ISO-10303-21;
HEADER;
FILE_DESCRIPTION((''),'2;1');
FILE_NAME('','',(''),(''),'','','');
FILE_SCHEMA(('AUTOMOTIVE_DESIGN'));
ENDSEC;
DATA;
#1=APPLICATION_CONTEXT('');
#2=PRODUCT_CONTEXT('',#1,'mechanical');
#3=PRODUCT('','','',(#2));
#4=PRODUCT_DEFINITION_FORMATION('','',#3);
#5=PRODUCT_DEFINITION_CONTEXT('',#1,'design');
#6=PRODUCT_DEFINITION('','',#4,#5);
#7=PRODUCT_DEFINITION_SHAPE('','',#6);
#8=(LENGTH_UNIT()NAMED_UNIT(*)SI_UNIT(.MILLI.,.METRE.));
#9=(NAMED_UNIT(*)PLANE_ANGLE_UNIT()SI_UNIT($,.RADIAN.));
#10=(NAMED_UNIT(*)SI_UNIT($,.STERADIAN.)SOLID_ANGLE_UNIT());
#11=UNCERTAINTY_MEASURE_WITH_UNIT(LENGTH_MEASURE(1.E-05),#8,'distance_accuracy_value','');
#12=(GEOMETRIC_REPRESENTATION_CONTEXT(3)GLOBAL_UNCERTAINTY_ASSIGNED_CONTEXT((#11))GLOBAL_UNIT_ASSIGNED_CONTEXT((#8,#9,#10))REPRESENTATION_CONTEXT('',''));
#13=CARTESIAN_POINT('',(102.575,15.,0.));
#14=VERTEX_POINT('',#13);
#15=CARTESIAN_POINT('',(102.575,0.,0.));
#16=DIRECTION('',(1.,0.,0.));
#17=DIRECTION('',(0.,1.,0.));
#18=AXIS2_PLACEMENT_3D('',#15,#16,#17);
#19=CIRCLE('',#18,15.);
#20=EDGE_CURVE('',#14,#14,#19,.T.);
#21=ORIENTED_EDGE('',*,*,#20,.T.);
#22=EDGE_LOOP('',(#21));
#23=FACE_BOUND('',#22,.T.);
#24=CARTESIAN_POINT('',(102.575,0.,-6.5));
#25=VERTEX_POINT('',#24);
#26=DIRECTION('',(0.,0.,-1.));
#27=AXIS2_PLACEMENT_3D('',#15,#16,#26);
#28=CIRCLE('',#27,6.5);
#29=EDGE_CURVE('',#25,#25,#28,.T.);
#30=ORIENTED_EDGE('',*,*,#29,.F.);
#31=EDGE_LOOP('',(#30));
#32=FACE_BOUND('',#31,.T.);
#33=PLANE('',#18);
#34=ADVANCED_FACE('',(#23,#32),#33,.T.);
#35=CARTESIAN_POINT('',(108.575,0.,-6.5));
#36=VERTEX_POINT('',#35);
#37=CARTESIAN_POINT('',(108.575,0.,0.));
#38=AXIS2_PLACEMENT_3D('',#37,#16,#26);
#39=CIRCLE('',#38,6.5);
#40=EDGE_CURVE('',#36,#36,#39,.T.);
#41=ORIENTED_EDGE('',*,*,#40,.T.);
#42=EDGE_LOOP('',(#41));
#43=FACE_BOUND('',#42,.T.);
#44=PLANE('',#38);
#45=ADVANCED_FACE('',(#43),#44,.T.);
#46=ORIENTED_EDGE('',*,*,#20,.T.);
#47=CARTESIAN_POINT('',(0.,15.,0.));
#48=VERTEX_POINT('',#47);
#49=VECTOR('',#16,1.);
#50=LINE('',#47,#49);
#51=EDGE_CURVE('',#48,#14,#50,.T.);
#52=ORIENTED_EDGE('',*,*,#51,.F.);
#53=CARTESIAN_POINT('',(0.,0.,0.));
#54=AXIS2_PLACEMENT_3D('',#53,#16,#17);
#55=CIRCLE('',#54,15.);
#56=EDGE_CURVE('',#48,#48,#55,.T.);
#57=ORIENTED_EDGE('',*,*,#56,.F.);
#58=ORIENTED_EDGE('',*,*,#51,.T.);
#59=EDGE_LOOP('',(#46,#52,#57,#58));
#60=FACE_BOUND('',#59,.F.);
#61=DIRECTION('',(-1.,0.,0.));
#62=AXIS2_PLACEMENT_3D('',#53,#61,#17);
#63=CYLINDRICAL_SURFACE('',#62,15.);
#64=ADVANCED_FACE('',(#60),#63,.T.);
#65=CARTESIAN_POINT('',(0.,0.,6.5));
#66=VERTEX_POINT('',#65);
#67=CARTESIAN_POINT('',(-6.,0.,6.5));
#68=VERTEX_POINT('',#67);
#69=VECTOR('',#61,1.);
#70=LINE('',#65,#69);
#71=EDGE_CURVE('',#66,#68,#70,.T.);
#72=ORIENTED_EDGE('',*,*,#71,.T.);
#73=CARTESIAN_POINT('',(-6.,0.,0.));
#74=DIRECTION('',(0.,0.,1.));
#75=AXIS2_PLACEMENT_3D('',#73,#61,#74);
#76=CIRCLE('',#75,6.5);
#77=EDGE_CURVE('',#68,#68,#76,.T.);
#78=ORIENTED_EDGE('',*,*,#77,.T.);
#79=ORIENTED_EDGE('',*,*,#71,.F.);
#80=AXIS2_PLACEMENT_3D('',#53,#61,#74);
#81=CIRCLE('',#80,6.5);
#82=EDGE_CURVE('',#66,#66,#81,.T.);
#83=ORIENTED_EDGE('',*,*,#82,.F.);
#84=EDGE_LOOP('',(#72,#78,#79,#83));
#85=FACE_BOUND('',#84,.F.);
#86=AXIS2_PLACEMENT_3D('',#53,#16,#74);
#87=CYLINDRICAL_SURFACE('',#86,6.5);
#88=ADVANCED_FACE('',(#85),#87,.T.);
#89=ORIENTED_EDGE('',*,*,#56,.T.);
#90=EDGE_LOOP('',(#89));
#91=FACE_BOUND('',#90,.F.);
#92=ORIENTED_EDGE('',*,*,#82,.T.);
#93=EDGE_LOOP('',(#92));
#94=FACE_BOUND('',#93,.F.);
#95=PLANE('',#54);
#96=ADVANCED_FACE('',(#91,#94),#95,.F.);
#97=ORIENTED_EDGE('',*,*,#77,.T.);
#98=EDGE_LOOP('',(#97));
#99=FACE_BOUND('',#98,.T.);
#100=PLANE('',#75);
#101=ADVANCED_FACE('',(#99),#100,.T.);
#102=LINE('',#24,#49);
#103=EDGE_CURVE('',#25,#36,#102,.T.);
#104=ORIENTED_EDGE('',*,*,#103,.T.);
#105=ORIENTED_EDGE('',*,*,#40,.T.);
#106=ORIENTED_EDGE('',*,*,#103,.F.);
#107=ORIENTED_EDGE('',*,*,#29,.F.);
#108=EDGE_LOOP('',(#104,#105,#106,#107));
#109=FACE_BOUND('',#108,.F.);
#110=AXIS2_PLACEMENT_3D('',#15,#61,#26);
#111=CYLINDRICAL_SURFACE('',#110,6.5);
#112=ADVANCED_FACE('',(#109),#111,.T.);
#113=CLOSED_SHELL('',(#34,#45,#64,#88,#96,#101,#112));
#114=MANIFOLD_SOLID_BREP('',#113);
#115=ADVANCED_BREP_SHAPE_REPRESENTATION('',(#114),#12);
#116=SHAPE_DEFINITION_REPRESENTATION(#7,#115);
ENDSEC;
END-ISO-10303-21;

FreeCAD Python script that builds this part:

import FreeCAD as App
import Part
import Sketcher
Q = App.Units.Quantity

doc = App.newDocument("Part")
body = doc.addObject("PartDesign::Body", "Body")

sketch1 = body.newObject("Sketcher::SketchObject", "Sketch")
sketch1.AttachmentSupport = (doc.getObject("YZ_Plane"), [""])
sketch1.MapMode = "FlatFace"
sketch1.addGeometry(Part.Circle(App.Vector(0, 0, 0), App.Vector(0, 0, 1), 15), False)
sketch1.addConstraint([
    Sketcher.Constraint("Coincident", 0, 3, -1, 1),
    Sketcher.Constraint("Diameter", 0, Q("30 mm")),
])
pad1 = body.newObject("PartDesign::Pad", "Pad")
pad1.Profile = sketch1
pad1.Length = 102.575

sketch2 = body.newObject("Sketcher::SketchObject", "Sketch001")
sketch2.AttachmentSupport = (doc.getObject("YZ_Plane"), [""])
sketch2.MapMode = "FlatFace"
sketch2.AttachmentOffset = App.Placement(App.Vector(0, 0, 102.575), App.Rotation())
sketch2.addGeometry(Part.Circle(App.Vector(0, 0, 0), App.Vector(0, 0, 1), 6), False)
sketch2.addConstraint([
    Sketcher.Constraint("Coincident", 0, 3, -1, 1),
    Sketcher.Constraint("Diameter", 0, Q("13 mm")),
])
pad2 = body.newObject("PartDesign::Pad", "Pad001")
pad2.Profile = sketch2
pad2.Length = 6

sketch3 = body.newObject("Sketcher::SketchObject", "Sketch002")
sketch3.AttachmentSupport = (doc.getObject("YZ_Plane"), [""])
sketch3.MapMode = "FlatFace"
sketch3.addGeometry(Part.Circle(App.Vector(0, 0, 0), App.Vector(0, 0, 1), 6), False)
sketch3.addConstraint([
    Sketcher.Constraint("Coincident", 0, 3, -1, 1),
    Sketcher.Constraint("Diameter", 0, Q("13 mm")),
])
pad3 = body.newObject("PartDesign::Pad", "Pad002")
pad3.Profile = sketch3
pad3.Length = 6
pad3.Reversed = True

doc.recompute()
